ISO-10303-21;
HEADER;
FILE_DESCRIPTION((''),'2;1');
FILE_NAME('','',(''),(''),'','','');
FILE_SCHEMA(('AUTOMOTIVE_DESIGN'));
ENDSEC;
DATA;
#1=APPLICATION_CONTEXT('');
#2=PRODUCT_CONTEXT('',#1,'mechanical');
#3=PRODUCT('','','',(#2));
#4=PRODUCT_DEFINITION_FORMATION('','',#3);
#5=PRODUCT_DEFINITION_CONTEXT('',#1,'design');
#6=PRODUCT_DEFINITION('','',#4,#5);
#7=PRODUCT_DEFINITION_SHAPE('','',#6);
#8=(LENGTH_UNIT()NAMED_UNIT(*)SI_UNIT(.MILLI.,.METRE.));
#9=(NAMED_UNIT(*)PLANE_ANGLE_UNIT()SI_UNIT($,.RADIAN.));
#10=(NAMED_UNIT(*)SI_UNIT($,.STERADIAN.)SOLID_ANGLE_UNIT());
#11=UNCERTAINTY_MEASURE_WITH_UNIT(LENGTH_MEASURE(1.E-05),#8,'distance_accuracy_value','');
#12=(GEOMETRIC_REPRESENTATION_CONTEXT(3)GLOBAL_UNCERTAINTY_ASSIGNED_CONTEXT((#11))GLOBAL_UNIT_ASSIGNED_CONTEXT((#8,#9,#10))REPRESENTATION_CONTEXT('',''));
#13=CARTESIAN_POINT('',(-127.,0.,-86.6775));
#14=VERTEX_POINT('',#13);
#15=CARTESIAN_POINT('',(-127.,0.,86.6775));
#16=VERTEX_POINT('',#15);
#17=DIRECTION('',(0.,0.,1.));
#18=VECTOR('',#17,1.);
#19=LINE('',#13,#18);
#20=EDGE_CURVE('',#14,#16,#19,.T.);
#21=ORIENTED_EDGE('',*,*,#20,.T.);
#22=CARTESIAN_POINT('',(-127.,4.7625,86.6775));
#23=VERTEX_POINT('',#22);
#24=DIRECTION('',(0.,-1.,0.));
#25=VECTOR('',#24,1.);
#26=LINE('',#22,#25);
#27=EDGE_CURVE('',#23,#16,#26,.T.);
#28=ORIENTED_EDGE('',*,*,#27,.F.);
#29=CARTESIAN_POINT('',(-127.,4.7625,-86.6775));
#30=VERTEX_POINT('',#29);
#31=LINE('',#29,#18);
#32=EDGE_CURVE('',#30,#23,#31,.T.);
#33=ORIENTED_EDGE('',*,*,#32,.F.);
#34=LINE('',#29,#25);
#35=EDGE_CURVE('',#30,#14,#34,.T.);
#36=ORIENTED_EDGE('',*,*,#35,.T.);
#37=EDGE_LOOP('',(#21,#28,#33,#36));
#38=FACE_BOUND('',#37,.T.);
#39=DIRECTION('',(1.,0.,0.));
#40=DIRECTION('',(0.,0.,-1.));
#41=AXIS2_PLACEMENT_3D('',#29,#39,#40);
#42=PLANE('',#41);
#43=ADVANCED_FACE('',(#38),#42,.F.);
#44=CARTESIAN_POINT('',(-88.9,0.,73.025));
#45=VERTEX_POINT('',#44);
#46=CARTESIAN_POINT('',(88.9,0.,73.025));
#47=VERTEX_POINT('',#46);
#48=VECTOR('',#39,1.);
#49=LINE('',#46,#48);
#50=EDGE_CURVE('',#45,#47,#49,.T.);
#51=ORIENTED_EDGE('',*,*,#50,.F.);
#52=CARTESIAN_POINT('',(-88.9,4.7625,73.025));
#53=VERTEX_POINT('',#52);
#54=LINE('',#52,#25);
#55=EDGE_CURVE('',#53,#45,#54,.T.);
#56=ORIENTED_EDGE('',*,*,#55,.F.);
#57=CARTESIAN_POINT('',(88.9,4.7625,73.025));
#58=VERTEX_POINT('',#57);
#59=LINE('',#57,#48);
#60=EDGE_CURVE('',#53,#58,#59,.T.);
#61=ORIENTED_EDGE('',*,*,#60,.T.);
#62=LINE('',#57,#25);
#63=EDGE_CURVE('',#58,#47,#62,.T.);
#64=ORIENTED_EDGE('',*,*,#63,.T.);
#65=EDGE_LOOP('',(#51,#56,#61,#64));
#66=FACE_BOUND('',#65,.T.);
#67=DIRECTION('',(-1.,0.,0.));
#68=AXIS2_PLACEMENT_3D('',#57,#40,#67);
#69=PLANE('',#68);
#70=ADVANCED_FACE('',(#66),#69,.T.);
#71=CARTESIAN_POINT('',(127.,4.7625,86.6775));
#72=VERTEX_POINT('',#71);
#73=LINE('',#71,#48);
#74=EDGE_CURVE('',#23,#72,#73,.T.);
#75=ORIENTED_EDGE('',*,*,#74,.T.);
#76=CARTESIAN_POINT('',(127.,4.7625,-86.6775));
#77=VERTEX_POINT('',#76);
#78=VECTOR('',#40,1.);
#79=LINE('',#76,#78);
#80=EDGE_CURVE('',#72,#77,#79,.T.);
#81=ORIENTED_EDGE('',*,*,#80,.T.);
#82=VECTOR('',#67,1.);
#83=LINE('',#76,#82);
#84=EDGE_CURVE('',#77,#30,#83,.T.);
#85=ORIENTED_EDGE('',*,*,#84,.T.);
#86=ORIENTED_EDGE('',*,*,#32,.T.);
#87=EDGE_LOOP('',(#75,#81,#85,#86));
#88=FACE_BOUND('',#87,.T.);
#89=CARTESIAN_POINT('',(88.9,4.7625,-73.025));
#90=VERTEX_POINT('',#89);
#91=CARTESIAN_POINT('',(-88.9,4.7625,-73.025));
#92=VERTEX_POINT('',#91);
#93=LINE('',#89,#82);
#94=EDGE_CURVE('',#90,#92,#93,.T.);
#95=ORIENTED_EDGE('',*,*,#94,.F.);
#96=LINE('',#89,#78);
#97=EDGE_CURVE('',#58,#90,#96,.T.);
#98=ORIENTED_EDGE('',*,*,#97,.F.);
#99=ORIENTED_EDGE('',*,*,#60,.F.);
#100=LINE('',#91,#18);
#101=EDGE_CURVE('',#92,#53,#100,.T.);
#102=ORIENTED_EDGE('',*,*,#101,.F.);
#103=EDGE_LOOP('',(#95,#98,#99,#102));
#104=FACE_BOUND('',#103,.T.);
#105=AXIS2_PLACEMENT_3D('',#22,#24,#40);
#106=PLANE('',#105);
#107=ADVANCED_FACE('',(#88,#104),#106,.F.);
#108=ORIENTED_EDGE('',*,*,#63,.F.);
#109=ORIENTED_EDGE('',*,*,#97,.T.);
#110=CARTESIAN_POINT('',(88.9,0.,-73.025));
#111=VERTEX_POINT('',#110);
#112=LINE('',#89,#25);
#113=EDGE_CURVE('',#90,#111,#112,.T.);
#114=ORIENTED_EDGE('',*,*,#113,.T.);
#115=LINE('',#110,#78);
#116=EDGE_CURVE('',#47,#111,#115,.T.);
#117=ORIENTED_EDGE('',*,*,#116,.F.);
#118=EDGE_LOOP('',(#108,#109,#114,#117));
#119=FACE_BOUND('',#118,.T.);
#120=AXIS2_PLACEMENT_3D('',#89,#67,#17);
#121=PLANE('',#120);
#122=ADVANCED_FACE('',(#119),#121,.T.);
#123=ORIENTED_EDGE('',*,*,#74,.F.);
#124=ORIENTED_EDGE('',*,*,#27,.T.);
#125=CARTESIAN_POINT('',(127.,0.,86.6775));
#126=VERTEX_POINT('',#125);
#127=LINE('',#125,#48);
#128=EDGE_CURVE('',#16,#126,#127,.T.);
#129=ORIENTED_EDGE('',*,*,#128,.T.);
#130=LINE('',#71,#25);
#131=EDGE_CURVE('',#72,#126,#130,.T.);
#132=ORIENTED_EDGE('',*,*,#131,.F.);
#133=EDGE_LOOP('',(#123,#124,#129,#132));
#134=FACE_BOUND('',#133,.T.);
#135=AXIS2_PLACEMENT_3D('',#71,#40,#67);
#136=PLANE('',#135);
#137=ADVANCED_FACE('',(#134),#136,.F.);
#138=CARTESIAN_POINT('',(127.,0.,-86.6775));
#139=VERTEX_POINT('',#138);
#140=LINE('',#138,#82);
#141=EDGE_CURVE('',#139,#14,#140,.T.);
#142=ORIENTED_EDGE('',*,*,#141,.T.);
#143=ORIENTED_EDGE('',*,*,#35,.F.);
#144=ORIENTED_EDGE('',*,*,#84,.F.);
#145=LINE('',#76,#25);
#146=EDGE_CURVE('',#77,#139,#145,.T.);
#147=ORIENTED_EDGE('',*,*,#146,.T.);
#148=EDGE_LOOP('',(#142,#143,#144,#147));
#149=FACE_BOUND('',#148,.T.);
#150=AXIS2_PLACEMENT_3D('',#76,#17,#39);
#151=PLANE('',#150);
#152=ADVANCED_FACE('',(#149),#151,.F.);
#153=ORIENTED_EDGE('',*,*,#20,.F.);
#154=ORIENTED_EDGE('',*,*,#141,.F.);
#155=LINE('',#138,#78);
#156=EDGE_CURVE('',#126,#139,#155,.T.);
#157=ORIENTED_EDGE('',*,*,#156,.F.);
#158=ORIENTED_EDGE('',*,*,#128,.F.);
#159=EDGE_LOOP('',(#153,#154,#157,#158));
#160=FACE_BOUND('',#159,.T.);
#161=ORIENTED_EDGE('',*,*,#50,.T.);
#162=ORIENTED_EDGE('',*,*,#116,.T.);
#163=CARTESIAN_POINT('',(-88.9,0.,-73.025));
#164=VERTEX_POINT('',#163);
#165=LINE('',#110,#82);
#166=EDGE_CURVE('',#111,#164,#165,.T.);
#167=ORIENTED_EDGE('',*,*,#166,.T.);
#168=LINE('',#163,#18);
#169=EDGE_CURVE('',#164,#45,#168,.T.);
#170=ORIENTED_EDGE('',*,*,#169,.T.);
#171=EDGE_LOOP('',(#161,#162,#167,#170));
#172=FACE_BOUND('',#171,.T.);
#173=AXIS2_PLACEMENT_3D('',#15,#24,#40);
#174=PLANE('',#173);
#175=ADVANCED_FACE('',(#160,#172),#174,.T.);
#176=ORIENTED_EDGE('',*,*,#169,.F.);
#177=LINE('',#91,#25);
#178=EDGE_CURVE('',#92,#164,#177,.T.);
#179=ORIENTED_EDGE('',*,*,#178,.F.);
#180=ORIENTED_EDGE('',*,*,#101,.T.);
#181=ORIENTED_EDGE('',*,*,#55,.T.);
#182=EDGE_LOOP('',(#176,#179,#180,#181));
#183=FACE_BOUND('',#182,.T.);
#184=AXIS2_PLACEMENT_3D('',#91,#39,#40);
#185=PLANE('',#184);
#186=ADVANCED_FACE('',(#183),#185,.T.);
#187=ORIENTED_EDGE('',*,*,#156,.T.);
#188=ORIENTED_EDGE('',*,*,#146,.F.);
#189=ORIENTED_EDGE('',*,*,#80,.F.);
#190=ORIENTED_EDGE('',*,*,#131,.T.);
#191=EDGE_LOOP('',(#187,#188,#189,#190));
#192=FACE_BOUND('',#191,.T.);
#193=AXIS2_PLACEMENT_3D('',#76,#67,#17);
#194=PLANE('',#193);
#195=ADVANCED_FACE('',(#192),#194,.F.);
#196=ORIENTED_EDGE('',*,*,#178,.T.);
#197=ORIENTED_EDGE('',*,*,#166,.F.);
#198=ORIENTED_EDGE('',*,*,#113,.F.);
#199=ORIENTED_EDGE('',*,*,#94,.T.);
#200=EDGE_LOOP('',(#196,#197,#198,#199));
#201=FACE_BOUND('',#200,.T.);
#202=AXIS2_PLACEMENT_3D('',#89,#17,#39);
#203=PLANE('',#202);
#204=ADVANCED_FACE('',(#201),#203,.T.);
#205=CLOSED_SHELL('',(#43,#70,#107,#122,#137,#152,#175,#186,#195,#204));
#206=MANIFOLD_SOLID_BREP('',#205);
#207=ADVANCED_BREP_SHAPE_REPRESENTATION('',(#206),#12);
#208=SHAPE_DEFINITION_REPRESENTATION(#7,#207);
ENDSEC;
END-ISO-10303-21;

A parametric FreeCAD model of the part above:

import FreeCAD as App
import Part
import Sketcher
Q = App.Units.Quantity


def add_polygon(sketch, points):
    """Adds a closed chain of lines whose ends are joined by coincident constraints."""
    first, n = sketch.GeometryCount, len(points)
    for a, b in zip(points, points[1:] + points[:1]):
        sketch.addGeometry(Part.LineSegment(App.Vector(*a, 0), App.Vector(*b, 0)), False)
    for i in range(n):
        sketch.addConstraint(Sketcher.Constraint("Coincident", first + i, 2, first + (i + 1) % n, 1))

doc = App.newDocument("Part")
body = doc.addObject("PartDesign::Body", "Body")

sketch1 = body.newObject("Sketcher::SketchObject", "Sketch")
sketch1.AttachmentSupport = (doc.getObject("XZ_Plane"), [""])
sketch1.MapMode = "FlatFace"
add_polygon(sketch1, [(-127, -86.6775), (-127, 86.6775), (127, 86.6775), (127, -86.6775)])
add_polygon(sketch1, [(88.9, 73.025), (-88.9, 73.025), (-88.9, -73.025), (88.9, -73.025)])
sketch1.addConstraint([
    Sketcher.Constraint("Vertical", 0),
    Sketcher.Constraint("Horizontal", 1),
    Sketcher.Constraint("Vertical", 2),
    Sketcher.Constraint("Horizontal", 3),
    Sketcher.Constraint("Horizontal", 4),
    Sketcher.Constraint("Vertical", 5),
    Sketcher.Constraint("Horizontal", 6),
    Sketcher.Constraint("Vertical", 7),
    Sketcher.Constraint("Symmetric", 0, 2, 2, 2, -1, 1),
    Sketcher.Constraint("Symmetric", 4, 2, 6, 2, -1, 1),
    Sketcher.Constraint("DistanceX", 1, 1, 1, 2, Q("10 in")),
    Sketcher.Constraint("DistanceX", 4, 2, 4, 1, Q("7 in")),
    Sketcher.Constraint("DistanceY", 5, 2, 5, 1, Q("5.75 in")),
    Sketcher.Constraint("DistanceY", 0, 1, 0, 2, Q("6.825 in")),
])
pad1 = body.newObject("PartDesign::Pad", "Pad")
pad1.Profile = sketch1
pad1.Length = Q("0.1875 in")
pad1.Reversed = True

doc.recompute()
